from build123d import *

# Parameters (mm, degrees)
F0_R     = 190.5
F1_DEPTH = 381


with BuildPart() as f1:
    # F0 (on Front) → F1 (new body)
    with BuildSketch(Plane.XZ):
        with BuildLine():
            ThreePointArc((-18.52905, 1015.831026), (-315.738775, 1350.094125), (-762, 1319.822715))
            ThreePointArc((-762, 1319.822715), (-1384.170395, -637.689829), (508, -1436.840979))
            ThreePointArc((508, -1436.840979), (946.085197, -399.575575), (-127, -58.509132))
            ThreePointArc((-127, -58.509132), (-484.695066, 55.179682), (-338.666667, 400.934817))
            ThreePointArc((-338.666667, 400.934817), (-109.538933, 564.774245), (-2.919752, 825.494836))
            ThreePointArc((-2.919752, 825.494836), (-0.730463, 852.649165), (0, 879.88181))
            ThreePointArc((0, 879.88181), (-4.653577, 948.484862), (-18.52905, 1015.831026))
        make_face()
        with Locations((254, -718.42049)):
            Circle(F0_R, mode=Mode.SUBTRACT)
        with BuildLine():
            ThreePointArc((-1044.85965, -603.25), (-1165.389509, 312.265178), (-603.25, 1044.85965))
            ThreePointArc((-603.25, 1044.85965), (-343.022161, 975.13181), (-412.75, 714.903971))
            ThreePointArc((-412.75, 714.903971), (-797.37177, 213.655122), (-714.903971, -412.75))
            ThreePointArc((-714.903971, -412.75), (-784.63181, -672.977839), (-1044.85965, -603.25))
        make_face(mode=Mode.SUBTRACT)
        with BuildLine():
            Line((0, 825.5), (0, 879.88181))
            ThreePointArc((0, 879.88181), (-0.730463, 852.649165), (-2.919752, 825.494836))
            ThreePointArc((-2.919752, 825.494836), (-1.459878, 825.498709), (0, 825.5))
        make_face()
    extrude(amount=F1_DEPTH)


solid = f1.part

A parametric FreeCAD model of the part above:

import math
import FreeCAD as App
import Part
import Sketcher
from FreeCAD import Vector
Q = App.Units.Quantity

doc = App.newDocument("Part")
body = doc.addObject("PartDesign::Body", "Body")

sketch1 = body.newObject("Sketcher::SketchObject", "Sketch")
sketch1.AttachmentSupport = (doc.getObject("XZ_Plane"), [""])
sketch1.MapMode = "FlatFace"
sketch1.addGeometry([
    Part.ArcOfCircle(Part.Circle(Vector(-508, 879.9, 0), Vector(0, 0, 1), 508), math.radians(16), math.radians(120)),
    Part.ArcOfCircle(Part.Circle(Vector(0, 0, 0), Vector(0, 0, 1), 1524), math.radians(120), math.radians(289)),
    Part.ArcOfCircle(Part.Circle(Vector(254, -718.4, 0), Vector(0, 0, 1), 762), math.radians(-71), math.radians(120)),
    Part.ArcOfCircle(Part.Circle(Vector(-254, 161.5, 0), Vector(0, 0, 1), 254), math.radians(109), math.radians(300)),
    Part.ArcOfCircle(Part.Circle(Vector(-508, 879.9, 0), Vector(0, 0, 1), 508), math.radians(-71), math.radians(-6)),
    Part.ArcOfCircle(Part.Circle(Vector(0, 0.1, 0), Vector(0, 0, 1), 825.4), math.radians(90), math.radians(90.2)),
    Part.LineSegment(Vector(0, 825.5, 0), Vector(0, 879.9, 0)),
    Part.ArcOfCircle(Part.Circle(Vector(-508, 879.9, 0), Vector(0, 0, 1), 508), math.radians(0), math.radians(15.52)),
    Part.Circle(Vector(254, -718.4, 0), Vector(0, 0, 1), 190.5),
    Part.ArcOfCircle(Part.Circle(Vector(-879.9, -508, 0), Vector(0, 0, 1), 190.5), math.radians(-150), math.radians(30)),
    Part.ArcOfCircle(Part.Circle(Vector(0, 0, 0), Vector(0, 0, 1), 1206.5), math.radians(120), math.radians(210)),
    Part.ArcOfCircle(Part.Circle(Vector(-508, 879.9, 0), Vector(0, 0, 1), 190.5), math.radians(-60), math.radians(120)),
    Part.ArcOfCircle(Part.Circle(Vector(0, 0, 0), Vector(0, 0, 1), 825.5), math.radians(120), math.radians(210)),
], False)
sketch1.addConstraint([
    Sketcher.Constraint("Tangent", 0, 2, 1, 1),
    Sketcher.Constraint("Tangent", 1, 2, 2, 1),
    Sketcher.Constraint("Tangent", 2, 2, 3, 2),
    Sketcher.Constraint("Tangent", 3, 1, 4, 1),
    Sketcher.Constraint("Coincident", 4, 2, 5, 2),
    Sketcher.Constraint("Coincident", 5, 1, 6, 1),
    Sketcher.Constraint("Tangent", 6, 2, 7, 1),
    Sketcher.Constraint("Coincident", 7, 2, 0, 1),
    Sketcher.Constraint("Tangent", 9, 1, 10, 2),
    Sketcher.Constraint("Tangent", 10, 1, 11, 2),
    Sketcher.Constraint("Tangent", 11, 1, 12, 1),
    Sketcher.Constraint("Tangent", 12, 2, 9, 2),
    Sketcher.Constraint("Vertical", 6),
    Sketcher.Constraint("Coincident", 1, 3, -1, 1),
    Sketcher.Constraint("Coincident", 10, 3, -1, 1),
    Sketcher.Constraint("Coincident", 12, 3, -1, 1),
    Sketcher.Constraint("Coincident", 4, 3, 0, 3),
    Sketcher.Constraint("Coincident", 8, 3, 2, 3),
    Sketcher.Constraint("Coincident", 11, 3, 0, 3),
    Sketcher.Constraint("Equal", 0, 4),
    Sketcher.Constraint("Equal", 8, 9),
    Sketcher.Constraint("PointOnObject", 5, 3, -2),
    Sketcher.Constraint("PointOnObject", 6, 2, -2),
    Sketcher.Constraint("Horizontal", 4, 3, 7, 3),
    Sketcher.Constraint("Diameter", 8, Q("15 in")),
    Sketcher.Constraint("Radius", 0, Q("20 in")),
    Sketcher.Constraint("Radius", 1, Q("60 in")),
    Sketcher.Constraint("Radius", 2, Q("30 in")),
    Sketcher.Constraint("Radius", 3, Q("10 in")),
    Sketcher.Constraint("DistanceX", 0, 3, -1, 1, Q("20 in")),
    Sketcher.Constraint("DistanceX", -1, 1, 2, 3, Q("10 in")),
    Sketcher.Constraint("DistanceY", 9, 3, -1, 1, Q("20 in")),
    Sketcher.Constraint("DistanceY", -1, 1, 5, 1, Q("32.5 in")),
    Sketcher.Constraint("Radius", 5, Q("825.423611 mm")),
    Sketcher.Constraint("DistanceX", 7, 2, -1, 1, Q("18.52905 mm")),
])
pad1 = body.newObject("PartDesign::Pad", "Pad")
pad1.Profile = sketch1
pad1.Length = Q("15 in")

doc.recompute()
